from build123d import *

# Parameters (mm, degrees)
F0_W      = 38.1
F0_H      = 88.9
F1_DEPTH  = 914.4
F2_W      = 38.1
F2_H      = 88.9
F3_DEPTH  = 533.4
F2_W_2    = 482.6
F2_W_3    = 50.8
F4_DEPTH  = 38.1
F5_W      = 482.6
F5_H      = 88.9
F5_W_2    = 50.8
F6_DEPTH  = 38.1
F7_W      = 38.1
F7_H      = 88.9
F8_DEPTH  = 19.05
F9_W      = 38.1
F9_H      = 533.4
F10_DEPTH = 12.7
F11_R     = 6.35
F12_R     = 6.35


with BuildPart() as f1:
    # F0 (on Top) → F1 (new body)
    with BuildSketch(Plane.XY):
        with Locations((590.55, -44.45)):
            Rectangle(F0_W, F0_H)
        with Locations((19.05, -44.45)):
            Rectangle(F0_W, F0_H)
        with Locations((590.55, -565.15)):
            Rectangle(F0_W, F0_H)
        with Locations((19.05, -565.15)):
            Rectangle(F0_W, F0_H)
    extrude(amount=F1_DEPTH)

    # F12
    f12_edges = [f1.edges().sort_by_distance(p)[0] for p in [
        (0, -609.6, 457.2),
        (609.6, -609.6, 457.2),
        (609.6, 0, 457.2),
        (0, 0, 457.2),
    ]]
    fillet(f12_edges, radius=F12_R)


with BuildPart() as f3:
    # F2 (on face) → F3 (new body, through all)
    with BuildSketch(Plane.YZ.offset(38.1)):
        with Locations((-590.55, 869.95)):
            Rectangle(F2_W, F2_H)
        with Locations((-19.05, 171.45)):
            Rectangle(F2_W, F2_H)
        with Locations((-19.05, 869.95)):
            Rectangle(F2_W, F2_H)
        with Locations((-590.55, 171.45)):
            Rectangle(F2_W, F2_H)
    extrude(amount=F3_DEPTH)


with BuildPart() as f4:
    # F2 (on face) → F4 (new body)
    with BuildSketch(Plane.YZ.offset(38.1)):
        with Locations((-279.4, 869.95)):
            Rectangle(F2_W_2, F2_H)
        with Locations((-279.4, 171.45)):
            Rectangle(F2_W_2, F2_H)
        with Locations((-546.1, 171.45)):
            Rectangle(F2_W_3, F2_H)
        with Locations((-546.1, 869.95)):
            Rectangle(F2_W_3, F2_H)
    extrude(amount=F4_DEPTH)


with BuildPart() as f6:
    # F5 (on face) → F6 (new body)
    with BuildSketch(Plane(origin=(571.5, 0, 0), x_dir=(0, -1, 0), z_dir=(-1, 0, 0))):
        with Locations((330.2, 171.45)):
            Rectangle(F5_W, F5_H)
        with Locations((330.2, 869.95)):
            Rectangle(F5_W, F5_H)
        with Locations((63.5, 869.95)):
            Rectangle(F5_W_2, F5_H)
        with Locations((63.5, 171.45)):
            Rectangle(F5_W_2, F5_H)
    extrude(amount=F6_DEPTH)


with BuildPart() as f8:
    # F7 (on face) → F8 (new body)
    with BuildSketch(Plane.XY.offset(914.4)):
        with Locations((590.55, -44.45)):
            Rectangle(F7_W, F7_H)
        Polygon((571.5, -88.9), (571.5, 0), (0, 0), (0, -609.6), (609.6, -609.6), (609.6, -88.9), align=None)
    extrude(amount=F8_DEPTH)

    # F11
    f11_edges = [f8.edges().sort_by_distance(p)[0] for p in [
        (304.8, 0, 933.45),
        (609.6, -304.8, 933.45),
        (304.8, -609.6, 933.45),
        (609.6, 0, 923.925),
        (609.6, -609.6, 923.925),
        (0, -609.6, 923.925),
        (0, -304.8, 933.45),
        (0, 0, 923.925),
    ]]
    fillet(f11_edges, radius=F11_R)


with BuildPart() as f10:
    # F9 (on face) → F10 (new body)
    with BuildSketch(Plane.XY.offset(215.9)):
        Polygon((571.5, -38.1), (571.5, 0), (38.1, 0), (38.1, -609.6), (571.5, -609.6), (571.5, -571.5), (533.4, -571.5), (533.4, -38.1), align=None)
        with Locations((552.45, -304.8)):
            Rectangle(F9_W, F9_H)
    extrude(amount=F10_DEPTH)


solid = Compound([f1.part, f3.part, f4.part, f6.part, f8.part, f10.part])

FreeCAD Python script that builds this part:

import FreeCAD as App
import Part
import Sketcher
Q = App.Units.Quantity


def edges_at(feature, points):
    """Names of the edges that pass closest to the given points."""
    edges = feature.Shape.Edges
    near = lambda p: min(range(len(edges)), key=lambda i: edges[i].distToShape(Part.Vertex(*p))[0])
    return sorted({f"Edge{near(p) + 1}" for p in points})


def add_polygon(sketch, points):
    """Adds a closed chain of lines whose ends are joined by coincident constraints."""
    first, n = sketch.GeometryCount, len(points)
    for a, b in zip(points, points[1:] + points[:1]):
        sketch.addGeometry(Part.LineSegment(App.Vector(*a, 0), App.Vector(*b, 0)), False)
    for i in range(n):
        sketch.addConstraint(Sketcher.Constraint("Coincident", first + i, 2, first + (i + 1) % n, 1))

doc = App.newDocument("Part")
body = doc.addObject("PartDesign::Body", "Body")
body.AllowCompound = True

sketch1 = doc.addObject("Sketcher::SketchObject", "Sketch")
body.addObject(sketch1)
sketch1.AttachmentSupport = (doc.XY_Plane, [""])
sketch1.MapMode = "FlatFace"
add_polygon(sketch1, [(572, 0), (572, -89), (610, -89), (610, 0)])
add_polygon(sketch1, [(0, 0), (0, -89), (38, -89), (38, 0)])
add_polygon(sketch1, [(572, -521), (572, -610), (610, -610), (610, -521)])
add_polygon(sketch1, [(0, -521), (0, -610), (38, -610), (38, -521)])
sketch1.addConstraint([
    Sketcher.Constraint("Vertical", 0),
    Sketcher.Constraint("Horizontal", 1),
    Sketcher.Constraint("Vertical", 2),
    Sketcher.Constraint("Horizontal", 3),
    Sketcher.Constraint("Vertical", 4),
    Sketcher.Constraint("Horizontal", 5),
    Sketcher.Constraint("Vertical", 6),
    Sketcher.Constraint("Horizontal", 7),
    Sketcher.Constraint("Vertical", 8),
    Sketcher.Constraint("Horizontal", 9),
    Sketcher.Constraint("Vertical", 10),
    Sketcher.Constraint("Horizontal", 11),
    Sketcher.Constraint("Vertical", 12),
    Sketcher.Constraint("Horizontal", 13),
    Sketcher.Constraint("Vertical", 14),
    Sketcher.Constraint("Horizontal", 15),
    Sketcher.Constraint("Coincident", 7, 2, -1, 1),
    Sketcher.Constraint("PointOnObject", 2, 2, -1),
    Sketcher.Constraint("PointOnObject", 12, 2, -2),
    Sketcher.Constraint("Horizontal", 1, 2, 4, 2),
    Sketcher.Constraint("Horizontal", 9, 2, 12, 2),
    Sketcher.Constraint("Horizontal", 11, 2, 14, 2),
    Sketcher.Constraint("Vertical", 3, 2, 8, 2),
    Sketcher.Constraint("Vertical", 2, 2, 9, 2),
    Sketcher.Constraint("Vertical", 6, 2, 13, 2),
    Sketcher.Constraint("Equal", 3, 5),
    Sketcher.Constraint("Equal", 6, 8),
    Sketcher.Constraint("DistanceX", 1, 1, 1, 2, Q("1.5 in")),
    Sketcher.Constraint("DistanceY", 0, 2, 0, 1, Q("3.5 in")),
    Sketcher.Constraint("DistanceX", -1, 1, 1, 2, Q("24 in")),
    Sketcher.Constraint("DistanceY", 8, 2, -1, 1, Q("24 in")),
])
pad1 = doc.addObject("PartDesign::Pad", "Pad")
body.addObject(pad1)
pad1.Profile = sketch1
pad1.Length = Q("36 in")
doc.recompute()

fillet = doc.addObject("PartDesign::Fillet", "Fillet")
body.addObject(fillet)
fillet.Base = (pad1, edges_at(pad1, [
    (0, -609.6, 457.2),
    (609.6, -609.6, 457.2),
    (609.6, 0, 457.2),
    (0, 0, 457.2),
]))
fillet.Radius = Q("0.25 in")
body2 = doc.addObject("PartDesign::Body", "Body001")
body2.AllowCompound = True

sketch2 = doc.addObject("Sketcher::SketchObject", "Sketch001")
body2.addObject(sketch2)
sketch2.AttachmentSupport = (doc.getObject("YZ_Plane001"), [""])
sketch2.MapMode = "FlatFace"
sketch2.AttachmentOffset = App.Placement(App.Vector(0, 0, 1.5 * 25.4), App.Rotation())
add_polygon(sketch2, [(-610, 914), (-610, 826), (-572, 826), (-572, 914)])
add_polygon(sketch2, [(-38, 216), (-38, 127), (0, 127), (0, 216)])
add_polygon(sketch2, [(-38, 914), (-38, 826), (0, 826), (0, 914)])
add_polygon(sketch2, [(-610, 216), (-610, 127), (-572, 127), (-572, 216)])
sketch2.addConstraint([
    Sketcher.Constraint("Vertical", 0),
    Sketcher.Constraint("Horizontal", 1),
    Sketcher.Constraint("Vertical", 2),
    Sketcher.Constraint("Horizontal", 3),
    Sketcher.Constraint("Vertical", 4),
    Sketcher.Constraint("Horizontal", 5),
    Sketcher.Constraint("Vertical", 6),
    Sketcher.Constraint("Horizontal", 7),
    Sketcher.Constraint("Vertical", 8),
    Sketcher.Constraint("Horizontal", 9),
    Sketcher.Constraint("Vertical", 10),
    Sketcher.Constraint("Horizontal", 11),
    Sketcher.Constraint("Vertical", 12),
    Sketcher.Constraint("Horizontal", 13),
    Sketcher.Constraint("Vertical", 14),
    Sketcher.Constraint("Horizontal", 15),
    Sketcher.Constraint("PointOnObject", 5, 2, -2),
    Sketcher.Constraint("PointOnObject", 9, 2, -2),
    Sketcher.Constraint("Horizontal", 1, 2, 8, 2),
    Sketcher.Constraint("Horizontal", 3, 2, 10, 2),
    Sketcher.Constraint("Horizontal", 5, 2, 12, 2),
    Sketcher.Constraint("Horizontal", 7, 2, 14, 2),
    Sketcher.Constraint("Vertical", 7, 2, 8, 2),
    Sketcher.Constraint("Vertical", 3, 2, 12, 2),
    Sketcher.Constraint("Vertical", 2, 2, 13, 2),
    Sketcher.Constraint("Equal", 3, 5),
    Sketcher.Constraint("Equal", 2, 4),
    Sketcher.Constraint("DistanceX", 1, 1, 1, 2, Q("1.5 in")),
    Sketcher.Constraint("DistanceY", 0, 2, 0, 1, Q("3.5 in")),
    Sketcher.Constraint("DistanceX", 0, 2, -1, 1, Q("24 in")),
    Sketcher.Constraint("DistanceY", -1, 1, 2, 2, Q("36 in")),
    Sketcher.Constraint("DistanceY", -1, 1, 4, 2, Q("5 in")),
])
pad2 = doc.addObject("PartDesign::Pad", "Pad001")
body2.addObject(pad2)
pad2.Profile = sketch2
pad2.Length = Q("21 in")
body3 = doc.addObject("PartDesign::Body", "Body002")
body3.AllowCompound = True

sketch3 = doc.addObject("Sketcher::SketchObject", "Sketch002")
body3.addObject(sketch3)
sketch3.AttachmentSupport = (doc.getObject("YZ_Plane002"), [""])
sketch3.MapMode = "FlatFace"
sketch3.AttachmentOffset = App.Placement(App.Vector(0, 0, 1.5 * 25.4), App.Rotation())
add_polygon(sketch3, [(-38, 826), (-38, 914), (-572, 914), (-572, 826)])
add_polygon(sketch3, [(-38, 127), (-38, 216), (-572, 216), (-572, 127)])
sketch3.addConstraint([
    Sketcher.Constraint("Vertical", 0),
    Sketcher.Constraint("Horizontal", 1),
    Sketcher.Constraint("Vertical", 2),
    Sketcher.Constraint("Horizontal", 3),
    Sketcher.Constraint("Vertical", 4),
    Sketcher.Constraint("Horizontal", 5),
    Sketcher.Constraint("Vertical", 6),
    Sketcher.Constraint("Horizontal", 7),
    Sketcher.Constraint("Vertical", 3, 2, 4, 2),
    Sketcher.Constraint("Vertical", 2, 2, 5, 2),
    Sketcher.Constraint("Equal", 2, 4),
    Sketcher.Constraint("DistanceX", 1, 2, 1, 1, Q("21 in")),
    Sketcher.Constraint("DistanceY", 0, 1, 0, 2, Q("3.5 in")),
    Sketcher.Constraint("DistanceY", -1, 1, 0, 2, Q("36 in")),
    Sketcher.Constraint("DistanceY", -1, 1, 6, 2, Q("5 in")),
    Sketcher.Constraint("DistanceX", 0, 2, -1, 1, Q("1.5 in")),
])
pad3 = doc.addObject("PartDesign::Pad", "Pad002")
body3.addObject(pad3)
pad3.Profile = sketch3
pad3.Length = Q("1.5 in")
body4 = doc.addObject("PartDesign::Body", "Body003")
body4.AllowCompound = True

sketch4 = doc.addObject("Sketcher::SketchObject", "Sketch003")
body4.addObject(sketch4)
sketch4.AttachmentSupport = (doc.getObject("YZ_Plane003"), [""])
sketch4.MapMode = "FlatFace"
sketch4.AttachmentOffset = App.Placement(App.Vector(0, 0, 22.5 * 25.4), App.Rotation())
add_polygon(sketch4, [(-572, 127), (-572, 216), (-38, 216), (-38, 127)])
add_polygon(sketch4, [(-572, 826), (-572, 914), (-38, 914), (-38, 826)])
sketch4.addConstraint([
    Sketcher.Constraint("Vertical", 0),
    Sketcher.Constraint("Horizontal", 1),
    Sketcher.Constraint("Vertical", 2),
    Sketcher.Constraint("Horizontal", 3),
    Sketcher.Constraint("Vertical", 4),
    Sketcher.Constraint("Horizontal", 5),
    Sketcher.Constraint("Vertical", 6),
    Sketcher.Constraint("Horizontal", 7),
    Sketcher.Constraint("Vertical", 3, 2, 4, 2),
    Sketcher.Constraint("Vertical", 2, 2, 5, 2),
    Sketcher.Constraint("Equal", 2, 4),
    Sketcher.Constraint("DistanceX", 1, 1, 1, 2, Q("21 in")),
    Sketcher.Constraint("DistanceY", 0, 1, 0, 2, Q("3.5 in")),
    Sketcher.Constraint("DistanceY", -1, 1, 2, 2, Q("5 in")),
    Sketcher.Constraint("DistanceY", -1, 1, 4, 2, Q("36 in")),
    Sketcher.Constraint("DistanceX", 0, 2, -1, 1, Q("22.5 in")),
])
pad4 = doc.addObject("PartDesign::Pad", "Pad003")
body4.addObject(pad4)
pad4.Profile = sketch4
pad4.Length = Q("1.5 in")
pad4.Reversed = True
body5 = doc.addObject("PartDesign::Body", "Body004")

sketch5 = doc.addObject("Sketcher::SketchObject", "Sketch004")
body5.addObject(sketch5)
sketch5.AttachmentSupport = (doc.getObject("XY_Plane004"), [""])
sketch5.MapMode = "FlatFace"
sketch5.AttachmentOffset = App.Placement(App.Vector(0, 0, 36 * 25.4), App.Rotation())
add_polygon(sketch5, [(610, 0), (0, 0), (0, -610), (610, -610)])
sketch5.addConstraint([
    Sketcher.Constraint("Horizontal", 0),
    Sketcher.Constraint("Vertical", 1),
    Sketcher.Constraint("Horizontal", 2),
    Sketcher.Constraint("Vertical", 3),
    Sketcher.Constraint("Coincident", 0, 2, -1, 1),
    Sketcher.Constraint("Equal", 2, 1),
    Sketcher.Constraint("DistanceX", 0, 2, 0, 1, Q("24 in")),
])
pad5 = doc.addObject("PartDesign::Pad", "Pad004")
body5.addObject(pad5)
pad5.Profile = sketch5
pad5.Length = Q("0.75 in")
doc.recompute()

fillet2 = doc.addObject("PartDesign::Fillet", "Fillet001")
body5.addObject(fillet2)
fillet2.Base = (pad5, edges_at(pad5, [
    (304.8, 0, 933.45),
    (609.6, -304.8, 933.45),
    (304.8, -609.6, 933.45),
    (609.6, 0, 923.925),
    (609.6, -609.6, 923.925),
    (0, -609.6, 923.925),
    (0, -304.8, 933.45),
    (0, 0, 923.925),
]))
fillet2.Radius = Q("0.25 in")
body6 = doc.addObject("PartDesign::Body", "Body005")

sketch6 = doc.addObject("Sketcher::SketchObject", "Sketch005")
body6.addObject(sketch6)
sketch6.AttachmentSupport = (doc.getObject("XY_Plane005"), [""])
sketch6.MapMode = "FlatFace"
sketch6.AttachmentOffset = App.Placement(App.Vector(0, 0, 8.5 * 25.4), App.Rotation())
add_polygon(sketch6, [(572, 0), (38, 0), (38, -610), (572, -610)])
sketch6.addConstraint([
    Sketcher.Constraint("Horizontal", 0),
    Sketcher.Constraint("Vertical", 1),
    Sketcher.Constraint("Horizontal", 2),
    Sketcher.Constraint("Vertical", 3),
    Sketcher.Constraint("PointOnObject", 0, 2, -1),
    Sketcher.Constraint("DistanceX", 0, 2, 0, 1, Q("21 in")),
    Sketcher.Constraint("DistanceY", 1, 2, 1, 1, Q("24 in")),
    Sketcher.Constraint("DistanceX", -1, 1, 0, 2, Q("1.5 in")),
])
pad6 = doc.addObject("PartDesign::Pad", "Pad005")
body6.addObject(pad6)
pad6.Profile = sketch6
pad6.Length = Q("0.5 in")

doc.recompute()
